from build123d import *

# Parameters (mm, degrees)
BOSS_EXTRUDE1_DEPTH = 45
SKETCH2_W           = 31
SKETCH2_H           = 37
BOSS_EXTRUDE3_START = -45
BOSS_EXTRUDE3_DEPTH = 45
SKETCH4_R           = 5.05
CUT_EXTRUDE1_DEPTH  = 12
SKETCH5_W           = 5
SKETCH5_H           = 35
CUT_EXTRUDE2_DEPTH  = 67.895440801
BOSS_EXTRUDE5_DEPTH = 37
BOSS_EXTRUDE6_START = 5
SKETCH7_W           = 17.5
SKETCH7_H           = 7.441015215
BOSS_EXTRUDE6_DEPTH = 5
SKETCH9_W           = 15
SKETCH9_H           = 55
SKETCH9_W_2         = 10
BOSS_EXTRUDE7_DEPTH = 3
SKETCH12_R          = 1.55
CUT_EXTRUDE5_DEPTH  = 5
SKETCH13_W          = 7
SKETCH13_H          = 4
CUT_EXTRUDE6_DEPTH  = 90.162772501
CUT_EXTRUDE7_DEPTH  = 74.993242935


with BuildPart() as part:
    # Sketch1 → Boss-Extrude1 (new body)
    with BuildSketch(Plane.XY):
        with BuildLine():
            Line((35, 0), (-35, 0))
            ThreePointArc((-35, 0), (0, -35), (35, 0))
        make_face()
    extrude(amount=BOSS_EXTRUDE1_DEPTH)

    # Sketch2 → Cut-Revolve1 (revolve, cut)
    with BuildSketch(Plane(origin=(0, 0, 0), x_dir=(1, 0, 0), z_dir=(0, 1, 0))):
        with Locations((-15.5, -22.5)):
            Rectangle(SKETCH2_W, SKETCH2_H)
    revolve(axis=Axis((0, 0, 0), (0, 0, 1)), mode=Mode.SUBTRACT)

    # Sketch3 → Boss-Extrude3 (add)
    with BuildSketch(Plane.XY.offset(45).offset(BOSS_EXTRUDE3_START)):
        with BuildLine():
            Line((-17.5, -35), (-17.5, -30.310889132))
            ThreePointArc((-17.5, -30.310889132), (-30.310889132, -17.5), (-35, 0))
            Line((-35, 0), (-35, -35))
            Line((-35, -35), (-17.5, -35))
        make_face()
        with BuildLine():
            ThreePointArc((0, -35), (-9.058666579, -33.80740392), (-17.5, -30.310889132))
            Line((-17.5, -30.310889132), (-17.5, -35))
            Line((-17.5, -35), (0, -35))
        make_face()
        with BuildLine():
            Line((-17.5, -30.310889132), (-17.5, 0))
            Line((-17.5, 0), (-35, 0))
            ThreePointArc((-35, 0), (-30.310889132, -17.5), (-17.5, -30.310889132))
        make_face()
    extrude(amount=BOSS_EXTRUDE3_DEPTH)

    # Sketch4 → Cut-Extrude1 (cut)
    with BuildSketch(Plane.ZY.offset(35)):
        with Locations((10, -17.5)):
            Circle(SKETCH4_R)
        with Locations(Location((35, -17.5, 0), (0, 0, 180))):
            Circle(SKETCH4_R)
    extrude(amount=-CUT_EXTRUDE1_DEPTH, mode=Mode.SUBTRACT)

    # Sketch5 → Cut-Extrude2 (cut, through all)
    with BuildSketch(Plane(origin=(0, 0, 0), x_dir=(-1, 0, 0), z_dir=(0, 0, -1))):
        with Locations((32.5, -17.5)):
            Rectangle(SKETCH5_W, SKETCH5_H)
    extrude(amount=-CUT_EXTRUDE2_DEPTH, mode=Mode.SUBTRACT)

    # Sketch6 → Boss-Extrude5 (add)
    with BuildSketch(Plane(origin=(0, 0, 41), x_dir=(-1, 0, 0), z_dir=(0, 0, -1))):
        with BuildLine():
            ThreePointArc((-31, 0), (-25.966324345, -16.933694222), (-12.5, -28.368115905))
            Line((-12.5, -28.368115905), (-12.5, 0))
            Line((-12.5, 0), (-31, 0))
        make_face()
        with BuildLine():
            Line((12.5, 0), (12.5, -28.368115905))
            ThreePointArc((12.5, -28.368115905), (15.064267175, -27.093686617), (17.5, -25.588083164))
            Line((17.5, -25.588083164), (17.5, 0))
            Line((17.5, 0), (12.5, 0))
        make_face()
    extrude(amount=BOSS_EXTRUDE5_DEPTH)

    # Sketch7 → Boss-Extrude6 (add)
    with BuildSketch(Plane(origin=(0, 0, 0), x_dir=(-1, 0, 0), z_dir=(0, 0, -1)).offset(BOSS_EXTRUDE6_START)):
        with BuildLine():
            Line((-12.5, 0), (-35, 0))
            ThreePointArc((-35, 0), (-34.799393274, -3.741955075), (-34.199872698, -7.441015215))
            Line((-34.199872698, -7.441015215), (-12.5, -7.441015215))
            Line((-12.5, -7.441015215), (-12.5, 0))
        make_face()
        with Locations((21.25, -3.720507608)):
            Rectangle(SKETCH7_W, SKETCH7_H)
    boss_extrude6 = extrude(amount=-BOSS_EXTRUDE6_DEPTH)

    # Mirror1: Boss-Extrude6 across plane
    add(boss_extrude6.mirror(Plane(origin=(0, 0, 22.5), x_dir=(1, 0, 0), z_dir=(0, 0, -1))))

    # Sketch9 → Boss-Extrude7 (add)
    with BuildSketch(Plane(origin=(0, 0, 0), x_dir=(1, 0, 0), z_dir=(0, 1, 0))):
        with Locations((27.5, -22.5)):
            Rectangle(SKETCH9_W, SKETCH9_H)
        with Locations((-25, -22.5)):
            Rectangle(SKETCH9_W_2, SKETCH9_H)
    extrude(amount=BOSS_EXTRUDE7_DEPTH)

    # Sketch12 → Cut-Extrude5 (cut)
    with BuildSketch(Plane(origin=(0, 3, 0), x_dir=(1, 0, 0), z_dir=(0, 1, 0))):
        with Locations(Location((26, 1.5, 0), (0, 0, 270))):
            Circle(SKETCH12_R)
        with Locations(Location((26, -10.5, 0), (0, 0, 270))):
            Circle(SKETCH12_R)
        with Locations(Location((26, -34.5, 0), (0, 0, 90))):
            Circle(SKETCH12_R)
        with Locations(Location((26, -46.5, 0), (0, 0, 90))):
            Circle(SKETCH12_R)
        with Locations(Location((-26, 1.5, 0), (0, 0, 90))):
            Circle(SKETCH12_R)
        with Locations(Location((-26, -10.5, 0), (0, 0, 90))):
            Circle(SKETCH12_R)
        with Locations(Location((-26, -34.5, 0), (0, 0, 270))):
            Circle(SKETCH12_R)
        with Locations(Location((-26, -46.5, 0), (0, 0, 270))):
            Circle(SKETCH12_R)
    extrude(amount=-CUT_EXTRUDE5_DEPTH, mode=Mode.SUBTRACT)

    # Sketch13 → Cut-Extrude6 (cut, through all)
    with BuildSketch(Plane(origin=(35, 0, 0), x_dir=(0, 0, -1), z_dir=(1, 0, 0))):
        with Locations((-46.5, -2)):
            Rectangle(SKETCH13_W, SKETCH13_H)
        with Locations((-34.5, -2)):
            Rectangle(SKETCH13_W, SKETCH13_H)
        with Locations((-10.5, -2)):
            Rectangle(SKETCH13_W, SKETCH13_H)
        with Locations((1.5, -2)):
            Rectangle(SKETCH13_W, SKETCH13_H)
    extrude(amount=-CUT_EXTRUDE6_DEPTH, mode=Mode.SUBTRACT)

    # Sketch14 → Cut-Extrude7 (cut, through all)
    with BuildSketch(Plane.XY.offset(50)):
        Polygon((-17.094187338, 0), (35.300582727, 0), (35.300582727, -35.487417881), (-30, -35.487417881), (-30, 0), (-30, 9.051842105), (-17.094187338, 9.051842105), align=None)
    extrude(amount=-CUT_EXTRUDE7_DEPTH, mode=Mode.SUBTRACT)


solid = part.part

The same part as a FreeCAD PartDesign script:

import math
import FreeCAD as App
import Part
import Sketcher
from FreeCAD import Vector
Q = App.Units.Quantity


def add_polygon(sketch, points):
    """Adds a closed chain of lines whose ends are joined by coincident constraints."""
    first, n = sketch.GeometryCount, len(points)
    for a, b in zip(points, points[1:] + points[:1]):
        sketch.addGeometry(Part.LineSegment(App.Vector(*a, 0), App.Vector(*b, 0)), False)
    for i in range(n):
        sketch.addConstraint(Sketcher.Constraint("Coincident", first + i, 2, first + (i + 1) % n, 1))

doc = App.newDocument("Part")
params = doc.addObject("Spreadsheet::Sheet", "Params")
for row, (alias, value) in enumerate([
    ("sketch1_radius", "35 mm"),
    ("pad1_length", "45 mm"),
    ("sketch2_width", "31 mm"),
    ("sketch2_height", "37 mm"),
    ("groove_angle", "360 deg"),
    ("sketch3_radius", "35 mm"),
    ("sketch3_width", "17.5 mm"),
    ("pad2_length", "45 mm"),
    ("sketch4_diameter", "10.1 mm"),
    ("pocket1_length", "12 mm"),
    ("sketch5_width", "5 mm"),
    ("sketch5_height", "35 mm"),
    ("sketch6_radius", "31 mm"),
    ("sketch6_width", "5 mm"),
    ("sketch6_width2", "18.5 mm"),
    ("pad3_length", "37 mm"),
    ("sketch7_radius", "35 mm"),
    ("sketch7_width", "22.5 mm"),
    ("sketch7_width2", "17.5 mm"),
    ("pad4_length", "5 mm"),
    ("sketch8_width", "15 mm"),
    ("sketch8_width2", "10 mm"),
    ("sketch8_height", "55 mm"),
    ("pad5_length", "3 mm"),
    ("sketch9_diameter", "3.1 mm"),
    ("pocket3_length", "5 mm"),
    ("sketch10_width", "4 mm"),
    ("sketch10_height", "7 mm"),
], start=1):
    params.set(f"A{row}", alias)
    params.set(f"B{row}", "=" + value)
    params.setAlias(f"B{row}", alias)

body = doc.addObject("PartDesign::Body", "Body")

sketch1 = doc.addObject("Sketcher::SketchObject", "Sketch")
body.addObject(sketch1)
sketch1.AttachmentSupport = (doc.XY_Plane, [""])
sketch1.MapMode = "FlatFace"
sketch1.addGeometry([
    Part.LineSegment(Vector(35, 0, 0), Vector(-35, 0, 0)),
    Part.ArcOfCircle(Part.Circle(Vector(0, 0, 0), Vector(0, 0, 1), 35), math.radians(180), math.radians(360)),
], False)
sketch1.addConstraint([
    Sketcher.Constraint("Coincident", 0, 1, 1, 2),
    Sketcher.Constraint("Coincident", 1, 1, 0, 2),
    Sketcher.Constraint("Horizontal", 0),
    Sketcher.Constraint("Coincident", 1, 3, -1, 1),
    Sketcher.Constraint("PointOnObject", 0, 1, -1),
    Sketcher.Constraint("Radius", 1, Q("35 mm")),
])
sketch1.setExpression("Constraints[5]", "Params.sketch1_radius")
pad1 = doc.addObject("PartDesign::Pad", "Pad")
body.addObject(pad1)
pad1.Profile = sketch1
pad1.setExpression("Length", "Params.pad1_length")

sketch2 = doc.addObject("Sketcher::SketchObject", "Sketch001")
body.addObject(sketch2)
sketch2.AttachmentSupport = (doc.XZ_Plane, [""])
sketch2.MapMode = "FlatFace"
add_polygon(sketch2, [(-31, 4), (-31, 41), (0, 41), (0, 4)])
sketch2.addConstraint([
    Sketcher.Constraint("Vertical", 0),
    Sketcher.Constraint("Horizontal", 1),
    Sketcher.Constraint("Vertical", 2),
    Sketcher.Constraint("Horizontal", 3),
    Sketcher.Constraint("PointOnObject", 1, 2, -2),
    Sketcher.Constraint("DistanceX", 1, 1, 1, 2, Q("31 mm")),
    Sketcher.Constraint("DistanceY", 0, 1, 0, 2, Q("37 mm")),
    Sketcher.Constraint("DistanceY", -1, 1, 0, 2, Q("41 mm")),
])
sketch2.setExpression("Constraints[9]", "Params.sketch2_width")
sketch2.setExpression("Constraints[10]", "Params.sketch2_height")
groove = doc.addObject("PartDesign::Groove", "Groove")
body.addObject(groove)
groove.Profile = sketch2
groove.ReferenceAxis = (sketch2, ["V_Axis"])
groove.setExpression("Angle", "Params.groove_angle")

sketch3 = doc.addObject("Sketcher::SketchObject", "Sketch002")
body.addObject(sketch3)
sketch3.AttachmentSupport = (doc.XY_Plane, [""])
sketch3.MapMode = "FlatFace"
sketch3.addGeometry([
    Part.LineSegment(Vector(-35, 0, 0), Vector(-35, -35, 0)),
    Part.LineSegment(Vector(-35, -35, 0), Vector(0, -35, 0)),
    Part.ArcOfCircle(Part.Circle(Vector(0, 0, 0), Vector(0, 0, 1), 35), math.radians(-120), math.radians(-90)),
    Part.LineSegment(Vector(-17.5, -30.310889, 0), Vector(-17.5, 0, 0)),
    Part.LineSegment(Vector(-17.5, 0, 0), Vector(-35, 0, 0)),
], False)
sketch3.addConstraint([
    Sketcher.Constraint("Coincident", 0, 2, 1, 1),
    Sketcher.Constraint("Tangent", 1, 2, 2, 2),
    Sketcher.Constraint("Coincident", 2, 1, 3, 1),
    Sketcher.Constraint("Coincident", 3, 2, 4, 1),
    Sketcher.Constraint("Coincident", 4, 2, 0, 1),
    Sketcher.Constraint("Vertical", 0),
    Sketcher.Constraint("Horizontal", 1),
    Sketcher.Constraint("Vertical", 3),
    Sketcher.Constraint("Horizontal", 4),
    Sketcher.Constraint("Coincident", 2, 3, -1, 1),
    Sketcher.Constraint("PointOnObject", 3, 2, -1),
    Sketcher.Constraint("Equal", 1, 0),
    Sketcher.Constraint("Radius", 2, Q("35 mm")),
    Sketcher.Constraint("DistanceX", 4, 2, 4, 1, Q("17.5 mm")),
])
sketch3.setExpression("Constraints[12]", "Params.sketch3_radius")
sketch3.setExpression("Constraints[13]", "Params.sketch3_width")
pad2 = doc.addObject("PartDesign::Pad", "Pad001")
body.addObject(pad2)
pad2.Profile = sketch3
pad2.setExpression("Length", "Params.pad2_length")

sketch4 = doc.addObject("Sketcher::SketchObject", "Sketch003")
body.addObject(sketch4)
sketch4.AttachmentSupport = (doc.YZ_Plane, [""])
sketch4.MapMode = "FlatFace"
sketch4.AttachmentOffset = App.Placement(Vector(0, 0, -35), App.Rotation())
sketch4.addGeometry([
    Part.Circle(Vector(-17.5, 10, 0), Vector(0, 0, 1), 5.05),
    Part.Circle(Vector(-17.5, 35, 0), Vector(0, 0, 1), 5.05),
], False)
sketch4.addConstraint([
    Sketcher.Constraint("Equal", 0, 1),
    Sketcher.Constraint("Vertical", 0, 3, 1, 3),
    Sketcher.Constraint("Diameter", 0, Q("10.1 mm")),
    Sketcher.Constraint("DistanceY", -1, 1, 0, 3, Q("10 mm")),
    Sketcher.Constraint("DistanceY", -1, 1, 1, 3, Q("35 mm")),
    Sketcher.Constraint("DistanceX", 0, 3, -1, 1, Q("17.5 mm")),
])
sketch4.setExpression("Constraints[2]", "Params.sketch4_diameter")
pocket1 = doc.addObject("PartDesign::Pocket", "Pocket")
body.addObject(pocket1)
pocket1.Profile = sketch4
pocket1.setExpression("Length", "Params.pocket1_length")
pocket1.Reversed = True

sketch5 = doc.addObject("Sketcher::SketchObject", "Sketch004")
body.addObject(sketch5)
sketch5.AttachmentSupport = (doc.XY_Plane, [""])
sketch5.MapMode = "FlatFace"
add_polygon(sketch5, [(-30, 0), (-30, -35), (-35, -35), (-35, 0)])
sketch5.addConstraint([
    Sketcher.Constraint("Vertical", 0),
    Sketcher.Constraint("Horizontal", 1),
    Sketcher.Constraint("Vertical", 2),
    Sketcher.Constraint("Horizontal", 3),
    Sketcher.Constraint("PointOnObject", 2, 2, -1),
    Sketcher.Constraint("DistanceX", 1, 2, 1, 1, Q("5 mm")),
    Sketcher.Constraint("DistanceY", 0, 2, 0, 1, Q("35 mm")),
    Sketcher.Constraint("DistanceX", 0, 2, -1, 1, Q("30 mm")),
])
sketch5.setExpression("Constraints[9]", "Params.sketch5_width")
sketch5.setExpression("Constraints[10]", "Params.sketch5_height")
pocket2 = doc.addObject("PartDesign::Pocket", "Pocket001")
body.addObject(pocket2)
pocket2.Profile = sketch5
pocket2.Type = "ThroughAll"
pocket2.Reversed = True

sketch6 = doc.addObject("Sketcher::SketchObject", "Sketch005")
body.addObject(sketch6)
sketch6.AttachmentSupport = (doc.XY_Plane, [""])
sketch6.MapMode = "FlatFace"
sketch6.AttachmentOffset = App.Placement(Vector(0, 0, 41), App.Rotation())
sketch6.addGeometry([
    Part.ArcOfCircle(Part.Circle(Vector(0, 0, 0), Vector(0, 0, 1), 31), math.radians(-66.220005), math.radians(0)),
    Part.LineSegment(Vector(12.5, -28.368116, 0), Vector(12.5, 0, 0)),
    Part.LineSegment(Vector(12.5, 0, 0), Vector(31, 0, 0)),
    Part.LineSegment(Vector(-12.5, 0, 0), Vector(-12.5, -28.368116, 0)),
    Part.ArcOfCircle(Part.Circle(Vector(0, 0, 0), Vector(0, 0, 1), 31), math.radians(-124.368697), math.radians(-113.779995)),
    Part.LineSegment(Vector(-17.5, -25.588083, 0), Vector(-17.5, 0, 0)),
    Part.LineSegment(Vector(-17.5, 0, 0), Vector(-12.5, 0, 0)),
], False)
sketch6.addConstraint([
    Sketcher.Constraint("Coincident", 0, 1, 1, 1),
    Sketcher.Constraint("Coincident", 1, 2, 2, 1),
    Sketcher.Constraint("Coincident", 2, 2, 0, 2),
    Sketcher.Constraint("Coincident", 3, 2, 4, 2),
    Sketcher.Constraint("Coincident", 4, 1, 5, 1),
    Sketcher.Constraint("Coincident", 5, 2, 6, 1),
    Sketcher.Constraint("Coincident", 6, 2, 3, 1),
    Sketcher.Constraint("Vertical", 1),
    Sketcher.Constraint("Horizontal", 2),
    Sketcher.Constraint("Vertical", 3),
    Sketcher.Constraint("Vertical", 5),
    Sketcher.Constraint("Horizontal", 6),
    Sketcher.Constraint("Coincident", 0, 3, -1, 1),
    Sketcher.Constraint("Coincident", 4, 3, -1, 1),
    Sketcher.Constraint("Equal", 0, 4),
    Sketcher.Constraint("Symmetric", 1, 2, 6, 2, -1, 1),
    Sketcher.Constraint("PointOnObject", 1, 2, -1),
    Sketcher.Constraint("Radius", 0, Q("31 mm")),
    Sketcher.Constraint("DistanceX", 6, 1, 6, 2, Q("5 mm")),
    Sketcher.Constraint("DistanceX", 2, 1, 2, 2, Q("18.5 mm")),
])
sketch6.setExpression("Constraints[17]", "Params.sketch6_radius")
sketch6.setExpression("Constraints[18]", "Params.sketch6_width")
sketch6.setExpression("Constraints[19]", "Params.sketch6_width2")
pad3 = doc.addObject("PartDesign::Pad", "Pad002")
body.addObject(pad3)
pad3.Profile = sketch6
pad3.setExpression("Length", "Params.pad3_length")
pad3.Reversed = True

sketch7 = doc.addObject("Sketcher::SketchObject", "Sketch006")
body.addObject(sketch7)
sketch7.AttachmentSupport = (doc.XY_Plane, [""])
sketch7.MapMode = "FlatFace"
sketch7.AttachmentOffset = App.Placement(Vector(0, 0, -5), App.Rotation())
sketch7.addGeometry(Part.LineSegment(Vector(12.5, 0, 0), Vector(35, 0, 0)), False)
sketch7.addGeometry(Part.ArcOfCircle(Part.Circle(Vector(0, 0, 0), Vector(0, 0, 1), 35), math.radians(-12.274788), math.radians(0)), False)
sketch7.addGeometry(Part.LineSegment(Vector(34.199873, -7.441015, 0), Vector(12.5, -7.441015, 0)), False)
sketch7.addGeometry(Part.LineSegment(Vector(12.5, -7.441015, 0), Vector(12.5, 0, 0)), False)
add_polygon(sketch7, [(-12.5, 0), (-12.5, -7.441015), (-30, -7.441015), (-30, 0)])
sketch7.addConstraint([
    Sketcher.Constraint("Coincident", 0, 2, 1, 2),
    Sketcher.Constraint("Coincident", 1, 1, 2, 1),
    Sketcher.Constraint("Coincident", 2, 2, 3, 1),
    Sketcher.Constraint("Coincident", 3, 2, 0, 1),
    Sketcher.Constraint("Horizontal", 0),
    Sketcher.Constraint("Horizontal", 2),
    Sketcher.Constraint("Vertical", 3),
    Sketcher.Constraint("Vertical", 4),
    Sketcher.Constraint("Horizontal", 5),
    Sketcher.Constraint("Vertical", 6),
    Sketcher.Constraint("Horizontal", 7),
    Sketcher.Constraint("Coincident", 1, 3, -1, 1),
    Sketcher.Constraint("Symmetric", 3, 2, 7, 2, -1, 1),
    Sketcher.Constraint("PointOnObject", 0, 2, -1),
    Sketcher.Constraint("Horizontal", 2, 2, 4, 2),
    Sketcher.Constraint("Radius", 1, Q("35 mm")),
    Sketcher.Constraint("DistanceX", 0, 1, 0, 2, Q("22.5 mm")),
    Sketcher.Constraint("DistanceX", 5, 2, 5, 1, Q("17.5 mm")),
    Sketcher.Constraint("DistanceX", 2, 2, 2, 1, Q("21.699873 mm")),
])
sketch7.setExpression("Constraints[19]", "Params.sketch7_radius")
sketch7.setExpression("Constraints[20]", "Params.sketch7_width")
sketch7.setExpression("Constraints[21]", "Params.sketch7_width2")
pad4 = doc.addObject("PartDesign::Pad", "Pad003")
body.addObject(pad4)
pad4.Profile = sketch7
pad4.setExpression("Length", "Params.pad4_length")
doc.recompute()

datumplane = doc.addObject("PartDesign::Plane", "DatumPlane")
body.addObject(datumplane)
datumplane.AttachmentSupport = (doc.XY_Plane, [""])
datumplane.MapMode = "FlatFace"
datumplane.AttachmentOffset = App.Placement(Vector(0, 0, 22.5), App.Rotation())
mirrored = doc.addObject("PartDesign::Mirrored", "Mirrored")
body.addObject(mirrored)
mirrored.Originals = [pad4]
mirrored.MirrorPlane = (datumplane, [""])
body.Tip = mirrored

sketch8 = doc.addObject("Sketcher::SketchObject", "Sketch007")
body.addObject(sketch8)
sketch8.AttachmentSupport = (doc.XZ_Plane, [""])
sketch8.MapMode = "FlatFace"
add_polygon(sketch8, [(20, -5), (20, 50), (35, 50), (35, -5)])
add_polygon(sketch8, [(-30, -5), (-30, 50), (-20, 50), (-20, -5)])
sketch8.addConstraint([
    Sketcher.Constraint("Vertical", 0),
    Sketcher.Constraint("Horizontal", 1),
    Sketcher.Constraint("Vertical", 2),
    Sketcher.Constraint("Horizontal", 3),
    Sketcher.Constraint("Vertical", 4),
    Sketcher.Constraint("Horizontal", 5),
    Sketcher.Constraint("Vertical", 6),
    Sketcher.Constraint("Horizontal", 7),
    Sketcher.Constraint("Symmetric", 0, 2, 5, 2, -2),
    Sketcher.Constraint("Horizontal", 3, 2, 6, 2),
    Sketcher.Constraint("DistanceX", 1, 1, 1, 2, Q("15 mm")),
    Sketcher.Constraint("DistanceX", 5, 1, 5, 2, Q("10 mm")),
    Sketcher.Constraint("DistanceY", 0, 1, 0, 2, Q("55 mm")),
    Sketcher.Constraint("DistanceX", -1, 1, 0, 2, Q("20 mm")),
    Sketcher.Constraint("DistanceY", -1, 1, 0, 2, Q("50 mm")),
])
sketch8.setExpression("Constraints[18]", "Params.sketch8_width")
sketch8.setExpression("Constraints[19]", "Params.sketch8_width2")
sketch8.setExpression("Constraints[20]", "Params.sketch8_height")
pad5 = doc.addObject("PartDesign::Pad", "Pad004")
body.addObject(pad5)
pad5.Profile = sketch8
pad5.setExpression("Length", "Params.pad5_length")
pad5.Reversed = True

sketch9 = doc.addObject("Sketcher::SketchObject", "Sketch008")
body.addObject(sketch9)
sketch9.AttachmentSupport = (doc.XZ_Plane, [""])
sketch9.MapMode = "FlatFace"
sketch9.AttachmentOffset = App.Placement(Vector(0, 0, -3), App.Rotation())
sketch9.addGeometry([
    Part.Circle(Vector(26, -1.5, 0), Vector(0, 0, 1), 1.55),
    Part.Circle(Vector(26, 10.5, 0), Vector(0, 0, 1), 1.55),
    Part.Circle(Vector(26, 34.5, 0), Vector(0, 0, 1), 1.55),
    Part.Circle(Vector(26, 46.5, 0), Vector(0, 0, 1), 1.55),
    Part.Circle(Vector(-26, -1.5, 0), Vector(0, 0, 1), 1.55),
    Part.Circle(Vector(-26, 10.5, 0), Vector(0, 0, 1), 1.55),
    Part.Circle(Vector(-26, 34.5, 0), Vector(0, 0, 1), 1.55),
    Part.Circle(Vector(-26, 46.5, 0), Vector(0, 0, 1), 1.55),
], False)
sketch9.addConstraint([
    Sketcher.Constraint("Equal", 0, 1),
    Sketcher.Constraint("Equal", 1, 2),
    Sketcher.Constraint("Equal", 2, 3),
    Sketcher.Constraint("Equal", 3, 4),
    Sketcher.Constraint("Equal", 4, 5),
    Sketcher.Constraint("Equal", 5, 6),
    Sketcher.Constraint("Equal", 6, 7),
    Sketcher.Constraint("Symmetric", 0, 3, 4, 3, -2),
    Sketcher.Constraint("Symmetric", 1, 3, 5, 3, -2),
    Sketcher.Constraint("Symmetric", 2, 3, 6, 3, -2),
    Sketcher.Constraint("Symmetric", 3, 3, 7, 3, -2),
    Sketcher.Constraint("Vertical", 0, 3, 1, 3),
    Sketcher.Constraint("Vertical", 1, 3, 2, 3),
    Sketcher.Constraint("Vertical", 2, 3, 3, 3),
    Sketcher.Constraint("Diameter", 0, Q("3.1 mm")),
    Sketcher.Constraint("DistanceX", -1, 1, 0, 3, Q("26 mm")),
    Sketcher.Constraint("DistanceY", 0, 3, 1, 3, Q("12 mm")),
    Sketcher.Constraint("DistanceY", 1, 3, 2, 3, Q("24 mm")),
    Sketcher.Constraint("DistanceY", 2, 3, 3, 3, Q("12 mm")),
    Sketcher.Constraint("DistanceY", 0, 3, -1, 1, Q("1.5 mm")),
])
sketch9.setExpression("Constraints[14]", "Params.sketch9_diameter")
pocket3 = doc.addObject("PartDesign::Pocket", "Pocket002")
body.addObject(pocket3)
pocket3.Profile = sketch9
pocket3.setExpression("Length", "Params.pocket3_length")
pocket3.Reversed = True

sketch10 = doc.addObject("Sketcher::SketchObject", "Sketch009")
body.addObject(sketch10)
sketch10.AttachmentSupport = (doc.YZ_Plane, [""])
sketch10.MapMode = "FlatFace"
sketch10.AttachmentOffset = App.Placement(Vector(0, 0, 35), App.Rotation())
add_polygon(sketch10, [(0, 50), (-4, 50), (-4, 43), (0, 43)])
add_polygon(sketch10, [(0, 38), (-4, 38), (-4, 31), (0, 31)])
add_polygon(sketch10, [(0, 14), (-4, 14), (-4, 7), (0, 7)])
add_polygon(sketch10, [(0, 2), (-4, 2), (-4, -5), (0, -5)])
sketch10.addConstraint([
    Sketcher.Constraint("Horizontal", 0),
    Sketcher.Constraint("Vertical", 1),
    Sketcher.Constraint("Horizontal", 2),
    Sketcher.Constraint("Vertical", 3),
    Sketcher.Constraint("Horizontal", 4),
    Sketcher.Constraint("Vertical", 5),
    Sketcher.Constraint("Horizontal", 6),
    Sketcher.Constraint("Vertical", 7),
    Sketcher.Constraint("Horizontal", 8),
    Sketcher.Constraint("Vertical", 9),
    Sketcher.Constraint("Horizontal", 10),
    Sketcher.Constraint("Vertical", 11),
    Sketcher.Constraint("Horizontal", 12),
    Sketcher.Constraint("Vertical", 13),
    Sketcher.Constraint("Horizontal", 14),
    Sketcher.Constraint("Vertical", 15),
    Sketcher.Constraint("PointOnObject", 2, 2, -2),
    Sketcher.Constraint("PointOnObject", 6, 2, -2),
    Sketcher.Constraint("PointOnObject", 10, 2, -2),
    Sketcher.Constraint("PointOnObject", 14, 2, -2),
    Sketcher.Constraint("Vertical", 1, 2, 4, 2),
    Sketcher.Constraint("Vertical", 5, 2, 8, 2),
    Sketcher.Constraint("Vertical", 9, 2, 12, 2),
    Sketcher.Constraint("Equal", 3, 5),
    Sketcher.Constraint("Equal", 7, 9),
    Sketcher.Constraint("Equal", 11, 13),
    Sketcher.Constraint("DistanceX", 0, 2, 0, 1, Q("4 mm")),
    Sketcher.Constraint("DistanceY", 1, 2, 1, 1, Q("7 mm")),
    Sketcher.Constraint("DistanceY", -1, 1, 0, 2, Q("50 mm")),
    Sketcher.Constraint("DistanceY", -1, 1, 4, 2, Q("38 mm")),
    Sketcher.Constraint("DistanceY", -1, 1, 8, 2, Q("14 mm")),
    Sketcher.Constraint("DistanceY", -1, 1, 12, 2, Q("2 mm")),
])
sketch10.setExpression("Constraints[42]", "Params.sketch10_width")
sketch10.setExpression("Constraints[43]", "Params.sketch10_height")
pocket4 = doc.addObject("PartDesign::Pocket", "Pocket003")
body.addObject(pocket4)
pocket4.Profile = sketch10
pocket4.Type = "ThroughAll"

sketch11 = doc.addObject("Sketcher::SketchObject", "Sketch010")
body.addObject(sketch11)
sketch11.AttachmentSupport = (doc.XY_Plane, [""])
sketch11.MapMode = "FlatFace"
sketch11.AttachmentOffset = App.Placement(Vector(0, 0, 50), App.Rotation())
add_polygon(sketch11, [(35.300583, 0), (-17.094187, 0), (-17.094187, 9.051842), (-30, 9.051842), (-30, -35.487418), (35.300583, -35.487418)])
sketch11.addConstraint([
    Sketcher.Constraint("Horizontal", 0),
    Sketcher.Constraint("Vertical", 1),
    Sketcher.Constraint("Horizontal", 2),
    Sketcher.Constraint("Vertical", 3),
    Sketcher.Constraint("Horizontal", 4),
    Sketcher.Constraint("Vertical", 5),
    Sketcher.Constraint("PointOnObject", 0, 2, -1),
    Sketcher.Constraint("DistanceX", 2, 2, -1, 1, Q("30 mm")),
    Sketcher.Constraint("DistanceX", 0, 2, 0, 1, Q("52.39477 mm")),
    Sketcher.Constraint("DistanceY", 3, 2, 3, 1, Q("44.53926 mm")),
    Sketcher.Constraint("DistanceX", 2, 2, 2, 1, Q("12.905813 mm")),
    Sketcher.Constraint("DistanceY", 1, 1, 1, 2, Q("9.051842 mm")),
])
pocket5 = doc.addObject("PartDesign::Pocket", "Pocket004")
body.addObject(pocket5)
pocket5.Profile = sketch11
pocket5.Type = "ThroughAll"

doc.recompute()
